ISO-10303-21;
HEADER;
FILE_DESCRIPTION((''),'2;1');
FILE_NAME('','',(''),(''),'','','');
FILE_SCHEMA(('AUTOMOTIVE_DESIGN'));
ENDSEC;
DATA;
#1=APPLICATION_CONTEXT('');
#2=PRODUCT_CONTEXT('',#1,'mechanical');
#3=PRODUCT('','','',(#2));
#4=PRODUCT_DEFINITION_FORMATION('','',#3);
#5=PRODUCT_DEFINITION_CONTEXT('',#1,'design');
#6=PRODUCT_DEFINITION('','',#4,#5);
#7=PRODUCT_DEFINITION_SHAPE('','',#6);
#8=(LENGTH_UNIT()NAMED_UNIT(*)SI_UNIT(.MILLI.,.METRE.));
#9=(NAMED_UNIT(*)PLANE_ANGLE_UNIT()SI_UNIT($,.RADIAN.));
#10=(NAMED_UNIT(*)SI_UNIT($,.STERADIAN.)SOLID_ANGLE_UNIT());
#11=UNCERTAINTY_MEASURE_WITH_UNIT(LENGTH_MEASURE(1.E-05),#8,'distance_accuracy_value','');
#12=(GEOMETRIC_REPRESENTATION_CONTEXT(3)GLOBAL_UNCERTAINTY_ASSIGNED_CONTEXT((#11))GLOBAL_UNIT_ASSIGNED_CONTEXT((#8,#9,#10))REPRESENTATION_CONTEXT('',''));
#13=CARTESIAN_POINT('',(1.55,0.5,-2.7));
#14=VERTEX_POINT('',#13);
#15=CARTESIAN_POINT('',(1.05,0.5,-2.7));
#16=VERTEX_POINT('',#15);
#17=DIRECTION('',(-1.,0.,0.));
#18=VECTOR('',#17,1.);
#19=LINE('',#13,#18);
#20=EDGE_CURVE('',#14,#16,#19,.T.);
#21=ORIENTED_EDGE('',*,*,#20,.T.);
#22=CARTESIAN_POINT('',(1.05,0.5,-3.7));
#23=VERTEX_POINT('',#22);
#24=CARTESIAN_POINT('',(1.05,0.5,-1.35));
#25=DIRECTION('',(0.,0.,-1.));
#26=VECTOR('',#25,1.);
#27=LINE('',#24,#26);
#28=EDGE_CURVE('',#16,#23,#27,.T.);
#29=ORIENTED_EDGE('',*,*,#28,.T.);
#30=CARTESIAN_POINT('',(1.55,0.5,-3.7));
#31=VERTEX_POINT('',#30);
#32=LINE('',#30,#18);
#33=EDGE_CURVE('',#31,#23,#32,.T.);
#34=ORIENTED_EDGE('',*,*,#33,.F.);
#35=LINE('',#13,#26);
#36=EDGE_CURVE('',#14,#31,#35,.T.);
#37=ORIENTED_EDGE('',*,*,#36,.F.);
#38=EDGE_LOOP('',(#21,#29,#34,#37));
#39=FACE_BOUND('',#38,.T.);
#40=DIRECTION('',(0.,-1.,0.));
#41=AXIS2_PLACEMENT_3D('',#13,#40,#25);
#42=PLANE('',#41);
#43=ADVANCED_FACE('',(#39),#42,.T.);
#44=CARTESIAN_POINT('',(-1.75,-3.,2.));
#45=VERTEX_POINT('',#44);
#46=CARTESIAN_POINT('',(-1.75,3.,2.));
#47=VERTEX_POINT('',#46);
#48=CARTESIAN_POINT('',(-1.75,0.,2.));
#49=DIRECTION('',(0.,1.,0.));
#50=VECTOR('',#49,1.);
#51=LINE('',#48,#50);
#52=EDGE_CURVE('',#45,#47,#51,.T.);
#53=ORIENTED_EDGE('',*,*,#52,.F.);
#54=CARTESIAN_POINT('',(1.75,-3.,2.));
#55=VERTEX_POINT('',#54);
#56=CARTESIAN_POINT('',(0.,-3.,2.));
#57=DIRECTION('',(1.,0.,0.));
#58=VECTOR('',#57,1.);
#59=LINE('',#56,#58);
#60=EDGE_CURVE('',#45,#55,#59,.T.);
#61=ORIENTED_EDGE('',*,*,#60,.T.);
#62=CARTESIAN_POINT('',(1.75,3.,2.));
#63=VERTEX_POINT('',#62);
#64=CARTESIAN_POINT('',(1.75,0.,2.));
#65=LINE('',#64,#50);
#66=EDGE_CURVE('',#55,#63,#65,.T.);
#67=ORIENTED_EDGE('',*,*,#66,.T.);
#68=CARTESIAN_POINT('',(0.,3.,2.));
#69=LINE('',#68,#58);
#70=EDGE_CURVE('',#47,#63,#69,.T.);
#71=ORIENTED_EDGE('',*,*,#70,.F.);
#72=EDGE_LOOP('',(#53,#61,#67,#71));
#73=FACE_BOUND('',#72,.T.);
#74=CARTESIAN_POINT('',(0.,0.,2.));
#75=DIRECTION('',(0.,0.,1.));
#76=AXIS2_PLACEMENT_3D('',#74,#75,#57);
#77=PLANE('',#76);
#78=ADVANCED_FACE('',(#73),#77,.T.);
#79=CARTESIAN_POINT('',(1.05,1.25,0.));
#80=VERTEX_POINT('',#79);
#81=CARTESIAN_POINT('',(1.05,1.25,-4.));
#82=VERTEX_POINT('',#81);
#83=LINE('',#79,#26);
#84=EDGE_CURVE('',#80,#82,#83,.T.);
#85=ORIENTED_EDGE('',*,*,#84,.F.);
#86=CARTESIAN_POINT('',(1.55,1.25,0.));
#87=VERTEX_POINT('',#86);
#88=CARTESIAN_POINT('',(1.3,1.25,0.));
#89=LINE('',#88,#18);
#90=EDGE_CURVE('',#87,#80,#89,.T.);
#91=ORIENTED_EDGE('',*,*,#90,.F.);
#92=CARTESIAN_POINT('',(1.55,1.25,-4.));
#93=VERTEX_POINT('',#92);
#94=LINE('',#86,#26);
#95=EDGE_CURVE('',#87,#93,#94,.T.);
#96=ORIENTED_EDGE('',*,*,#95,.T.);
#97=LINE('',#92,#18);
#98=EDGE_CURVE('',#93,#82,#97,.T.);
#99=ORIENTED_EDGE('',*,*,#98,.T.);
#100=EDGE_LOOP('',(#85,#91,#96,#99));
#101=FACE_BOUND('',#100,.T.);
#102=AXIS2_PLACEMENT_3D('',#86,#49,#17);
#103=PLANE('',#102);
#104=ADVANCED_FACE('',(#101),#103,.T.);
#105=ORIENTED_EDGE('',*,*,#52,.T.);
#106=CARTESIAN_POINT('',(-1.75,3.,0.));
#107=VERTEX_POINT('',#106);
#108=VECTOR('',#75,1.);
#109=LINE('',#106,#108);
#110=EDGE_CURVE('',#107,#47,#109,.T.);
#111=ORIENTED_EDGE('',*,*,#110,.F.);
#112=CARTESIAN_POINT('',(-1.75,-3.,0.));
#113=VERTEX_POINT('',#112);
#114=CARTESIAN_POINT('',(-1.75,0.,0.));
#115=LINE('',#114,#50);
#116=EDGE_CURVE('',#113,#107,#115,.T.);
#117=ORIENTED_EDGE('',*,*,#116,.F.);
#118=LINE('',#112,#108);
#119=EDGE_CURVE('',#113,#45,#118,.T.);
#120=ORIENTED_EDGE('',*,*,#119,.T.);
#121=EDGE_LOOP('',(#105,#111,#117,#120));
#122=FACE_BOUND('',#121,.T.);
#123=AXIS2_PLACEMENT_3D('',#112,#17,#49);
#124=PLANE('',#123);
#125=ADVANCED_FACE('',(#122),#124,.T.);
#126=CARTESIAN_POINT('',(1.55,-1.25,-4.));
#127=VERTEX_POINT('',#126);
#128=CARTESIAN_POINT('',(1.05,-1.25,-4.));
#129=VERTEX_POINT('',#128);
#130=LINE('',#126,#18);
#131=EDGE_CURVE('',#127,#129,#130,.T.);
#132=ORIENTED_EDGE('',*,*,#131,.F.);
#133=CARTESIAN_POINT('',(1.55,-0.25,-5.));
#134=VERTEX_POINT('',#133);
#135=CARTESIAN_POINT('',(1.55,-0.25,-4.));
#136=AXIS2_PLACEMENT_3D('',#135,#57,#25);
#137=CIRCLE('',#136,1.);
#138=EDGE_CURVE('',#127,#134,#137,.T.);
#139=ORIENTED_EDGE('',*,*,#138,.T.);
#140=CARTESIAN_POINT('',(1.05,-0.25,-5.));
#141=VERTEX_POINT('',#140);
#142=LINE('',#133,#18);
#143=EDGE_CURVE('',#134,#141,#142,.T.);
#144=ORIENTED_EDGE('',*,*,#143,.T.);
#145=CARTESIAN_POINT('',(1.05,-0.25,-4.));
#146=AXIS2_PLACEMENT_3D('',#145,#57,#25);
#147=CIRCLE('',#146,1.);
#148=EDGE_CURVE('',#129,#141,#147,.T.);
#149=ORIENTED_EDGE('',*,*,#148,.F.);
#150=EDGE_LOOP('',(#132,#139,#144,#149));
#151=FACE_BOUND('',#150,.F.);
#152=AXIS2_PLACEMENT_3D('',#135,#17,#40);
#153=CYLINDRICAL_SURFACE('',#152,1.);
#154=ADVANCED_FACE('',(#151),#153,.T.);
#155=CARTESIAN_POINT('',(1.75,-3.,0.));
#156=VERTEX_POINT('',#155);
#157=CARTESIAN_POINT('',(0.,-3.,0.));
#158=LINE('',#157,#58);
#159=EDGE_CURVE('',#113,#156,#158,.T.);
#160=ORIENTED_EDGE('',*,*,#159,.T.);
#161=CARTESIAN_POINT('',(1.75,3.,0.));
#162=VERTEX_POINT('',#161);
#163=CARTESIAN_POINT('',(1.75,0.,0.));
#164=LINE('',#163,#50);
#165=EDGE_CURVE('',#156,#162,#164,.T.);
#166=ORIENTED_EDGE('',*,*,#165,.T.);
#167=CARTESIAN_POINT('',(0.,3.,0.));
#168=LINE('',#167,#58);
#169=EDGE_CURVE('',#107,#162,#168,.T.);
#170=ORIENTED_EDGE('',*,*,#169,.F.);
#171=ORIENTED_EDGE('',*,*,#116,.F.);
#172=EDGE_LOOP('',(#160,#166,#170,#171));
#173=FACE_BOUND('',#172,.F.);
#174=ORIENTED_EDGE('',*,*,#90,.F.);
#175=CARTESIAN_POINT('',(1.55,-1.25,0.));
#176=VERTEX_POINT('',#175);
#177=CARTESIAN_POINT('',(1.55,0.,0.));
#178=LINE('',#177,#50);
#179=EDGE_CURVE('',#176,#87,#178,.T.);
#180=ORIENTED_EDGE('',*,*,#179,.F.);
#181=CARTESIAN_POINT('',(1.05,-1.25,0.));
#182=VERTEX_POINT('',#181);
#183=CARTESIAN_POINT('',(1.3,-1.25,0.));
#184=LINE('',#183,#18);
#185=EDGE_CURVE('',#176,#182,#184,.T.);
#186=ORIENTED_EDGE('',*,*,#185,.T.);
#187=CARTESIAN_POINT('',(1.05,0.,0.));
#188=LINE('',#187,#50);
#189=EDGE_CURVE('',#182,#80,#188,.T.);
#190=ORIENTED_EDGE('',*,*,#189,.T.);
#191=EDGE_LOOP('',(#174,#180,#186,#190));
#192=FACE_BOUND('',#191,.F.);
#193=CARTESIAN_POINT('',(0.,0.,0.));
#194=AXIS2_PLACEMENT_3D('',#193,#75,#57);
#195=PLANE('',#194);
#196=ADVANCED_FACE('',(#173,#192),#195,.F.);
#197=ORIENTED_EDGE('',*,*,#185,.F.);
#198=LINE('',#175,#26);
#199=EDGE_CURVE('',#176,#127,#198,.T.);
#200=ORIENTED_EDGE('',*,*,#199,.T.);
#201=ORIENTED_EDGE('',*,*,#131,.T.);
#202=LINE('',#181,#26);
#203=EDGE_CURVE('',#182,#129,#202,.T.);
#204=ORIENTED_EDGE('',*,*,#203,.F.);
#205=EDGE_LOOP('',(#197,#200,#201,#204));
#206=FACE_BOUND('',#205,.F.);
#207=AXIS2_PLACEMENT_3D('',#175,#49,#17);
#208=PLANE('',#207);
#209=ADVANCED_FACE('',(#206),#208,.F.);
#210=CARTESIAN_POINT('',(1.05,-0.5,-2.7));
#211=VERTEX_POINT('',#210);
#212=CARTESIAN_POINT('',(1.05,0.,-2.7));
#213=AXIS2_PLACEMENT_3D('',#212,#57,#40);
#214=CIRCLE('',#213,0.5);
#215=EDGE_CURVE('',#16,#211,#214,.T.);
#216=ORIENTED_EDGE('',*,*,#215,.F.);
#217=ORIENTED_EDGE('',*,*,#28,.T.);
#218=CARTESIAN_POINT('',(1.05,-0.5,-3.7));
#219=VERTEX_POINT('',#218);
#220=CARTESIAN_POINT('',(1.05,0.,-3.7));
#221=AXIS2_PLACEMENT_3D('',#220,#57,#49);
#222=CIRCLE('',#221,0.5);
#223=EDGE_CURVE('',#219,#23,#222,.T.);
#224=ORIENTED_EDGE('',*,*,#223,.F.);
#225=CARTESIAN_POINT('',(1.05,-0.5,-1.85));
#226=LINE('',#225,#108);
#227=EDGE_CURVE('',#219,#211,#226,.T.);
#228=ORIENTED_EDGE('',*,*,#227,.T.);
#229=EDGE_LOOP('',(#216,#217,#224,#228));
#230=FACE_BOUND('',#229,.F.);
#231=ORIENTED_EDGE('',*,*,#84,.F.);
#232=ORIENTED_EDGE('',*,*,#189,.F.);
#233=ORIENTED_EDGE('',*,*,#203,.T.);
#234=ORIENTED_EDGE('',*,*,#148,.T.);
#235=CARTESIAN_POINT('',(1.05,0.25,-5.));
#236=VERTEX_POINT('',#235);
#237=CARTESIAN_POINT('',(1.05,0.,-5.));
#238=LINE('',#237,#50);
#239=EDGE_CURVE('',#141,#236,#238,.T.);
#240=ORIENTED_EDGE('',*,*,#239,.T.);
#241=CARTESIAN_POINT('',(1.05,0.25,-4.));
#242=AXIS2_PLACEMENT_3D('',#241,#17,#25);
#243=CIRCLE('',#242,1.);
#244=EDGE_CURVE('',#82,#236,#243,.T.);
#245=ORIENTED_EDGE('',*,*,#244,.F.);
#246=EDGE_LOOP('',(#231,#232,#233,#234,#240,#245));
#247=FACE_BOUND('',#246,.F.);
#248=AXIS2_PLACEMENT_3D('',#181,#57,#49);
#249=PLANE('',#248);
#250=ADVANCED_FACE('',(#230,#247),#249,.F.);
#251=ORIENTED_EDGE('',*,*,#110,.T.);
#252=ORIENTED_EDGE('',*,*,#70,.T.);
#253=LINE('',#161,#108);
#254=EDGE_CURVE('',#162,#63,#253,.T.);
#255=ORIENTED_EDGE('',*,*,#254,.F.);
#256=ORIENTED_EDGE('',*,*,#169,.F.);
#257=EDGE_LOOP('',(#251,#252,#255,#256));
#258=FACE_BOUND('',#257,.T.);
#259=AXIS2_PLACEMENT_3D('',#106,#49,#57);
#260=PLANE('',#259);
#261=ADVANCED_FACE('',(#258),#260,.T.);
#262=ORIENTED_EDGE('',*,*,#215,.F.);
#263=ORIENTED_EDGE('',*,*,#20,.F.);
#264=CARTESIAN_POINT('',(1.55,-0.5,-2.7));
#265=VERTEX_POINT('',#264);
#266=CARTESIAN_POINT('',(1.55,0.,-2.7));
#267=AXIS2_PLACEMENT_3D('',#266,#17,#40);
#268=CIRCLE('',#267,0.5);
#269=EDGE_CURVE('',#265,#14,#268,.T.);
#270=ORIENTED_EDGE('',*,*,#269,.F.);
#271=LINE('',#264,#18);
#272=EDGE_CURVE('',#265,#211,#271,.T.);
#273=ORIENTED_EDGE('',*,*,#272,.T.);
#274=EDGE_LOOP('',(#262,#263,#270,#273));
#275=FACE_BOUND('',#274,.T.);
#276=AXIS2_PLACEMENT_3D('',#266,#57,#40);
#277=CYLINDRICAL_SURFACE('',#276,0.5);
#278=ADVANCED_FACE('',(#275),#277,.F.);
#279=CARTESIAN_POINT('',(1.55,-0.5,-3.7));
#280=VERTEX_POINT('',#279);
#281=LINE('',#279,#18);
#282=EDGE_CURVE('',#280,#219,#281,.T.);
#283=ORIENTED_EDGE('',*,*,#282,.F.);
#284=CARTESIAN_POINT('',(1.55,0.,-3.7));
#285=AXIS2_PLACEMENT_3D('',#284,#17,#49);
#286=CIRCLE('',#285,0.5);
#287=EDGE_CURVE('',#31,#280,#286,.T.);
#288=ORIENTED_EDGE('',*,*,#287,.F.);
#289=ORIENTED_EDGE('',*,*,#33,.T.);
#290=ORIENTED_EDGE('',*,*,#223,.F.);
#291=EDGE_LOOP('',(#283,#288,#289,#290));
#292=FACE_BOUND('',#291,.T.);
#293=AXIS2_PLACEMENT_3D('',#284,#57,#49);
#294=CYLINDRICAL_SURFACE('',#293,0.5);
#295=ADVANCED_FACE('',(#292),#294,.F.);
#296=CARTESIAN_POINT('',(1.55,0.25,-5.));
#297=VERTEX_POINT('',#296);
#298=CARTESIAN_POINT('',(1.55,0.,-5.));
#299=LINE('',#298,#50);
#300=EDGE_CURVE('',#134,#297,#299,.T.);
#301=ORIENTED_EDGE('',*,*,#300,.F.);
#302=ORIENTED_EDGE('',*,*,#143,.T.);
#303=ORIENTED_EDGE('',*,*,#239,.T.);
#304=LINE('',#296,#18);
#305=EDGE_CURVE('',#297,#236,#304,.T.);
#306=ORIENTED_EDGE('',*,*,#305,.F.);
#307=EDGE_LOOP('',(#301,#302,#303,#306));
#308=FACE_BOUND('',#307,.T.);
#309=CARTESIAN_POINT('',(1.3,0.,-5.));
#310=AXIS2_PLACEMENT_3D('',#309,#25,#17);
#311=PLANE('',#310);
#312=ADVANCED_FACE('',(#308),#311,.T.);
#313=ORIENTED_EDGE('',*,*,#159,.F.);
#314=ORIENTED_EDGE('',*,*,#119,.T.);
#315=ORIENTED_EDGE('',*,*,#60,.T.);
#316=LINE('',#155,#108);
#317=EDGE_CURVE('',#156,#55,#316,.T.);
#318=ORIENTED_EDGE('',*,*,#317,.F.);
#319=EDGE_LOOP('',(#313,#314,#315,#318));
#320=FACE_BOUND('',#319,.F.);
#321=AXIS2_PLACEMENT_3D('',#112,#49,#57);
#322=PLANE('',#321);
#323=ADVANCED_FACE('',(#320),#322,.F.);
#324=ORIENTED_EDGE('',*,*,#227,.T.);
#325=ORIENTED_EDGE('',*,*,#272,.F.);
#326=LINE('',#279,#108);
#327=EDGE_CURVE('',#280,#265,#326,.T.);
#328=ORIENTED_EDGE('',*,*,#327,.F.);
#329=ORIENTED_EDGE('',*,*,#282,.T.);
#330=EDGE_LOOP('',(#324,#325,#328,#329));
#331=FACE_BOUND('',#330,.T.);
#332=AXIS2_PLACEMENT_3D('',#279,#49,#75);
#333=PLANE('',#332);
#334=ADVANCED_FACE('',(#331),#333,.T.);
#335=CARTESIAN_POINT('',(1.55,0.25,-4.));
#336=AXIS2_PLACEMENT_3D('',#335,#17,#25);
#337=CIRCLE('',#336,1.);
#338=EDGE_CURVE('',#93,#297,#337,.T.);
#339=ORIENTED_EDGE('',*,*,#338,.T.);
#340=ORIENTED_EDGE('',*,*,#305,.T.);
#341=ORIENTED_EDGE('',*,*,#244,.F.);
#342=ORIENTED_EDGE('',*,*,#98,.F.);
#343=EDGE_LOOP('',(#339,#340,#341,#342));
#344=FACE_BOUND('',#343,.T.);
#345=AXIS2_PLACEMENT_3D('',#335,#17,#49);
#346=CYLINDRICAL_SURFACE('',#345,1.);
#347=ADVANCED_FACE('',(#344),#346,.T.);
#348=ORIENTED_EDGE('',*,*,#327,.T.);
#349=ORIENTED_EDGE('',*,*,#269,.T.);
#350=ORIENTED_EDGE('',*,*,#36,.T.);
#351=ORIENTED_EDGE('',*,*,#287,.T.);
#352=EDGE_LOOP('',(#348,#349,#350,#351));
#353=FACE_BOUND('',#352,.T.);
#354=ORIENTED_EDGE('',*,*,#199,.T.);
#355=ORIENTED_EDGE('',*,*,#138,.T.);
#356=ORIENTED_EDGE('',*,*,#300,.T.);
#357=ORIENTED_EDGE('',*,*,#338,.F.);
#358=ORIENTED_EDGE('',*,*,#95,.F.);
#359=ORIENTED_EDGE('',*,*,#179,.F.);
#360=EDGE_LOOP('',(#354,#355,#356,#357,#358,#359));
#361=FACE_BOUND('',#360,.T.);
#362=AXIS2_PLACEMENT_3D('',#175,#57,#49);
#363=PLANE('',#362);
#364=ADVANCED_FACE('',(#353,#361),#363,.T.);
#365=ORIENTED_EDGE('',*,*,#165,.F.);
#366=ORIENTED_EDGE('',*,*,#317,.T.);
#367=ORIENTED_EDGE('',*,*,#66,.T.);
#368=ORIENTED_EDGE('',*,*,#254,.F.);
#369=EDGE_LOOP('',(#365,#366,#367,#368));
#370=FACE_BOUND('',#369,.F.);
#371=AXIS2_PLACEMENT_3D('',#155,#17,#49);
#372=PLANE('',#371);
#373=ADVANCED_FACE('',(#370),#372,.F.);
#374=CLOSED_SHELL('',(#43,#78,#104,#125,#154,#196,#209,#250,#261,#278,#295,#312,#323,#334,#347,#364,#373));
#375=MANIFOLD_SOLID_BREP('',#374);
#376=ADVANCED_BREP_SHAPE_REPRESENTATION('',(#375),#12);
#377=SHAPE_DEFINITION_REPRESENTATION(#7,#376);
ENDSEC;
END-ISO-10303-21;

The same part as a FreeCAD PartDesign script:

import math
import FreeCAD as App
import Part
import Sketcher

V = App.Vector


def edges_at(feature, points):
    """Names of the edges that pass closest to the given points."""
    edges = feature.Shape.Edges
    near = lambda p: min(range(len(edges)), key=lambda i: edges[i].distToShape(Part.Vertex(*p))[0])
    return sorted({f"Edge{near(p) + 1}" for p in points})


def add_polygon(sketch, points):
    """Adds a closed chain of lines whose ends are joined by coincident constraints."""
    first, n = sketch.GeometryCount, len(points)
    for a, b in zip(points, points[1:] + points[:1]):
        sketch.addGeometry(Part.LineSegment(App.Vector(*a, 0), App.Vector(*b, 0)), False)
    for i in range(n):
        sketch.addConstraint(Sketcher.Constraint("Coincident", first + i, 2, first + (i + 1) % n, 1))

doc = App.newDocument("Part")
body = doc.addObject("PartDesign::Body", "Body")

sketch1 = body.newObject("Sketcher::SketchObject", "Sketch")
sketch1.AttachmentSupport = (doc.getObject("XY_Plane"), [""])
sketch1.MapMode = "FlatFace"
add_polygon(sketch1, [(-1.8, 3), (-1.8, -3), (1.8, -3), (1.8, 3)])
sketch1.addConstraint(Sketcher.Constraint("Vertical", 0))
sketch1.addConstraint(Sketcher.Constraint("Horizontal", 1))
sketch1.addConstraint(Sketcher.Constraint("Vertical", 2))
sketch1.addConstraint(Sketcher.Constraint("Horizontal", 3))
sketch1.addConstraint(Sketcher.Constraint("Symmetric", 0, 2, 2, 2, -1, 1))
sketch1.addConstraint(Sketcher.Constraint("DistanceY", 0, 2, 0, 1, 6.0))
sketch1.addConstraint(Sketcher.Constraint("DistanceX", 1, 1, 1, 2, 3.5))
pad1 = body.newObject("PartDesign::Pad", "Pad")
pad1.Profile = sketch1
pad1.Length = 2

sketch2 = body.newObject("Sketcher::SketchObject", "Sketch001")
sketch2.AttachmentSupport = (doc.getObject("XY_Plane"), [""])
sketch2.MapMode = "FlatFace"
add_polygon(sketch2, [(1.6, 1.2), (1.6, -1.2), (1.1, -1.2), (1.1, 1.2)])
sketch2.addConstraint(Sketcher.Constraint("Vertical", 0))
sketch2.addConstraint(Sketcher.Constraint("Horizontal", 1))
sketch2.addConstraint(Sketcher.Constraint("Vertical", 2))
sketch2.addConstraint(Sketcher.Constraint("Horizontal", 3))
sketch2.addConstraint(Sketcher.Constraint("DistanceX", 1, 2, 1, 1, 0.5))
sketch2.addConstraint(Sketcher.Constraint("DistanceY", 0, 2, 0, 1, 2.5))
sketch2.addConstraint(Sketcher.Constraint("DistanceX", -1, 1, 0, 2, 1.55))
sketch2.addConstraint(Sketcher.Constraint("DistanceY", 0, 2, -1, 1, 1.25))
pad2 = body.newObject("PartDesign::Pad", "Pad001")
pad2.Profile = sketch2
pad2.Length = 5
pad2.Reversed = True
doc.recompute()

fillet = body.newObject("PartDesign::Fillet", "Fillet")
fillet.Base = (pad2, edges_at(pad2, [(1.3, 1.25, -5), (1.3, -1.25, -5)]))
fillet.Radius = 1

sketch3 = body.newObject("Sketcher::SketchObject", "Sketch002")
sketch3.AttachmentSupport = (doc.getObject("YZ_Plane"), [""])
sketch3.MapMode = "FlatFace"
sketch3.AttachmentOffset = App.Placement(V(0, 0, 1.55), App.Rotation())
sketch3.addGeometry(Part.LineSegment(V(0.5, -3.7, 0), V(0.5, -2.7, 0)), False)
sketch3.addGeometry(Part.ArcOfCircle(Part.Circle(V(0, -2.7, 0), V(0, 0, 1), 0.5), math.radians(0), math.radians(180)), False)
sketch3.addGeometry(Part.LineSegment(V(-0.5, -2.7, 0), V(-0.5, -3.7, 0)), False)
sketch3.addGeometry(Part.ArcOfCircle(Part.Circle(V(0, -3.7, 0), V(0, 0, 1), 0.5), math.radians(180), math.radians(360)), False)
sketch3.addConstraint(Sketcher.Constraint("Tangent", 0, 2, 1, 1))
sketch3.addConstraint(Sketcher.Constraint("Tangent", 1, 2, 2, 1))
sketch3.addConstraint(Sketcher.Constraint("Tangent", 2, 2, 3, 1))
sketch3.addConstraint(Sketcher.Constraint("Tangent", 3, 2, 0, 1))
sketch3.addConstraint(Sketcher.Constraint("Vertical", 0))
sketch3.addConstraint(Sketcher.Constraint("Vertical", 2))
sketch3.addConstraint(Sketcher.Constraint("PointOnObject", 1, 3, -2))
sketch3.addConstraint(Sketcher.Constraint("Radius", 1, 0.5))
sketch3.addConstraint(Sketcher.Constraint("DistanceY", 0, 1, 0, 2, 1.0))
sketch3.addConstraint(Sketcher.Constraint("DistanceY", 1, 3, -1, 1, 2.7))
pocket1 = body.newObject("PartDesign::Pocket", "Pocket")
pocket1.Profile = sketch3
pocket1.Type = "ThroughAll"

doc.recompute()
